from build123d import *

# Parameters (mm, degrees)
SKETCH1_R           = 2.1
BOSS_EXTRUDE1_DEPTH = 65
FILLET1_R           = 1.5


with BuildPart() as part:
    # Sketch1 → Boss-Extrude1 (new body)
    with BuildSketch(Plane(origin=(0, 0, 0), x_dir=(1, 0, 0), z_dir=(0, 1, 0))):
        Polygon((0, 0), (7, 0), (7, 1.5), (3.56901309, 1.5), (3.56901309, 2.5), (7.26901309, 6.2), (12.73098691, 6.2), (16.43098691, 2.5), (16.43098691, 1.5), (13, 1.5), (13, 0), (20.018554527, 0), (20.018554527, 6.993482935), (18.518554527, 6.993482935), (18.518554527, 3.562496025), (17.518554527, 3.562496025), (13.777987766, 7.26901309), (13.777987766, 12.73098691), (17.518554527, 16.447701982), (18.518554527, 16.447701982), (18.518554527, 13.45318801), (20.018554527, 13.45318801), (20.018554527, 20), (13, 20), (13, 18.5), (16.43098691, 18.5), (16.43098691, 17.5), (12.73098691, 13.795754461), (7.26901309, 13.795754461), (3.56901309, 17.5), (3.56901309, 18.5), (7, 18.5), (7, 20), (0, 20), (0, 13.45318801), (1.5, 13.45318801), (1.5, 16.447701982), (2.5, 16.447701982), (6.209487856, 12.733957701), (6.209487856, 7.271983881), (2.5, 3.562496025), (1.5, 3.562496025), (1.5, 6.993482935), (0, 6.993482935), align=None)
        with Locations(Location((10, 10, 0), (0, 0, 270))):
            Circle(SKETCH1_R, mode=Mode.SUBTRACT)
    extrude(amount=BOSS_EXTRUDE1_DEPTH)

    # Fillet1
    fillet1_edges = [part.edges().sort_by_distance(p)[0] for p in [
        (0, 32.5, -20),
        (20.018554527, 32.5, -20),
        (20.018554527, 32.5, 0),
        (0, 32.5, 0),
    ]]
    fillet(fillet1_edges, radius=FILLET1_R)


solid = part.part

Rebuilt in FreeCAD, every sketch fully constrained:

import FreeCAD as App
import Part
import Sketcher


def edges_at(feature, points):
    """Names of the edges that pass closest to the given points."""
    edges = feature.Shape.Edges
    near = lambda p: min(range(len(edges)), key=lambda i: edges[i].distToShape(Part.Vertex(*p))[0])
    return sorted({f"Edge{near(p) + 1}" for p in points})

doc = App.newDocument("Part")
body = doc.addObject("PartDesign::Body", "Body")

sketch1 = body.newObject("Sketcher::SketchObject", "Sketch")
sketch1.AttachmentSupport = (doc.getObject("XZ_Plane"), [""])
sketch1.MapMode = "FlatFace"
sketch1.addGeometry(Part.LineSegment(App.Vector(0, 0, 0), App.Vector(7, 0, 0)), False)
sketch1.addGeometry(Part.LineSegment(App.Vector(7, 0, 0), App.Vector(7, -1.5, 0)), False)
sketch1.addGeometry(Part.LineSegment(App.Vector(7, -1.5, 0), App.Vector(3.6, -1.5, 0)), False)
sketch1.addGeometry(Part.LineSegment(App.Vector(3.6, -1.5, 0), App.Vector(3.6, -2.5, 0)), False)
sketch1.addGeometry(Part.LineSegment(App.Vector(3.6, -2.5, 0), App.Vector(7.3, -6.2, 0)), False)
sketch1.addGeometry(Part.LineSegment(App.Vector(7.3, -6.2, 0), App.Vector(12.7, -6.2, 0)), False)
sketch1.addGeometry(Part.LineSegment(App.Vector(12.7, -6.2, 0), App.Vector(16.4, -2.5, 0)), False)
sketch1.addGeometry(Part.LineSegment(App.Vector(16.4, -2.5, 0), App.Vector(16.4, -1.5, 0)), False)
sketch1.addGeometry(Part.LineSegment(App.Vector(16.4, -1.5, 0), App.Vector(13, -1.5, 0)), False)
sketch1.addGeometry(Part.LineSegment(App.Vector(13, -1.5, 0), App.Vector(13, 0, 0)), False)
sketch1.addGeometry(Part.LineSegment(App.Vector(13, 0, 0), App.Vector(20, 0, 0)), False)
sketch1.addGeometry(Part.LineSegment(App.Vector(20, 0, 0), App.Vector(20, -7, 0)), False)
sketch1.addGeometry(Part.LineSegment(App.Vector(20, -7, 0), App.Vector(18.5, -7, 0)), False)
sketch1.addGeometry(Part.LineSegment(App.Vector(18.5, -7, 0), App.Vector(18.5, -3.6, 0)), False)
sketch1.addGeometry(Part.LineSegment(App.Vector(18.5, -3.6, 0), App.Vector(17.5, -3.6, 0)), False)
sketch1.addGeometry(Part.LineSegment(App.Vector(17.5, -3.6, 0), App.Vector(13.8, -7.3, 0)), False)
sketch1.addGeometry(Part.LineSegment(App.Vector(13.8, -7.3, 0), App.Vector(13.8, -12.7, 0)), False)
sketch1.addGeometry(Part.LineSegment(App.Vector(13.8, -12.7, 0), App.Vector(17.5, -16.4, 0)), False)
sketch1.addGeometry(Part.LineSegment(App.Vector(17.5, -16.4, 0), App.Vector(18.5, -16.4, 0)), False)
sketch1.addGeometry(Part.LineSegment(App.Vector(18.5, -16.4, 0), App.Vector(18.5, -13.5, 0)), False)
sketch1.addGeometry(Part.LineSegment(App.Vector(18.5, -13.5, 0), App.Vector(20, -13.5, 0)), False)
sketch1.addGeometry(Part.LineSegment(App.Vector(20, -13.5, 0), App.Vector(20, -20, 0)), False)
sketch1.addGeometry(Part.LineSegment(App.Vector(20, -20, 0), App.Vector(13, -20, 0)), False)
sketch1.addGeometry(Part.LineSegment(App.Vector(13, -20, 0), App.Vector(13, -18.5, 0)), False)
sketch1.addGeometry(Part.LineSegment(App.Vector(13, -18.5, 0), App.Vector(16.4, -18.5, 0)), False)
sketch1.addGeometry(Part.LineSegment(App.Vector(16.4, -18.5, 0), App.Vector(16.4, -17.5, 0)), False)
sketch1.addGeometry(Part.LineSegment(App.Vector(16.4, -17.5, 0), App.Vector(12.7, -13.8, 0)), False)
sketch1.addGeometry(Part.LineSegment(App.Vector(12.7, -13.8, 0), App.Vector(7.3, -13.8, 0)), False)
sketch1.addGeometry(Part.LineSegment(App.Vector(7.3, -13.8, 0), App.Vector(3.6, -17.5, 0)), False)
sketch1.addGeometry(Part.LineSegment(App.Vector(3.6, -17.5, 0), App.Vector(3.6, -18.5, 0)), False)
sketch1.addGeometry(Part.LineSegment(App.Vector(3.6, -18.5, 0), App.Vector(7, -18.5, 0)), False)
sketch1.addGeometry(Part.LineSegment(App.Vector(7, -18.5, 0), App.Vector(7, -20, 0)), False)
sketch1.addGeometry(Part.LineSegment(App.Vector(7, -20, 0), App.Vector(0, -20, 0)), False)
sketch1.addGeometry(Part.LineSegment(App.Vector(0, -20, 0), App.Vector(0, -13.5, 0)), False)
sketch1.addGeometry(Part.LineSegment(App.Vector(0, -13.5, 0), App.Vector(1.5, -13.5, 0)), False)
sketch1.addGeometry(Part.LineSegment(App.Vector(1.5, -13.5, 0), App.Vector(1.5, -16.4, 0)), False)
sketch1.addGeometry(Part.LineSegment(App.Vector(1.5, -16.4, 0), App.Vector(2.5, -16.4, 0)), False)
sketch1.addGeometry(Part.LineSegment(App.Vector(2.5, -16.4, 0), App.Vector(6.2, -12.7, 0)), False)
sketch1.addGeometry(Part.LineSegment(App.Vector(6.2, -12.7, 0), App.Vector(6.2, -7.3, 0)), False)
sketch1.addGeometry(Part.LineSegment(App.Vector(6.2, -7.3, 0), App.Vector(2.5, -3.6, 0)), False)
sketch1.addGeometry(Part.LineSegment(App.Vector(2.5, -3.6, 0), App.Vector(1.5, -3.6, 0)), False)
sketch1.addGeometry(Part.LineSegment(App.Vector(1.5, -3.6, 0), App.Vector(1.5, -7, 0)), False)
sketch1.addGeometry(Part.LineSegment(App.Vector(1.5, -7, 0), App.Vector(0, -7, 0)), False)
sketch1.addGeometry(Part.LineSegment(App.Vector(0, -7, 0), App.Vector(0, 0, 0)), False)
sketch1.addGeometry(Part.Circle(App.Vector(10, -10, 0), App.Vector(0, 0, 1), 2.1), False)
sketch1.addConstraint(Sketcher.Constraint("Coincident", 0, 2, 1, 1))
sketch1.addConstraint(Sketcher.Constraint("Coincident", 1, 2, 2, 1))
sketch1.addConstraint(Sketcher.Constraint("Coincident", 2, 2, 3, 1))
sketch1.addConstraint(Sketcher.Constraint("Coincident", 3, 2, 4, 1))
sketch1.addConstraint(Sketcher.Constraint("Coincident", 4, 2, 5, 1))
sketch1.addConstraint(Sketcher.Constraint("Coincident", 5, 2, 6, 1))
sketch1.addConstraint(Sketcher.Constraint("Coincident", 6, 2, 7, 1))
sketch1.addConstraint(Sketcher.Constraint("Coincident", 7, 2, 8, 1))
sketch1.addConstraint(Sketcher.Constraint("Coincident", 8, 2, 9, 1))
sketch1.addConstraint(Sketcher.Constraint("Coincident", 9, 2, 10, 1))
sketch1.addConstraint(Sketcher.Constraint("Coincident", 10, 2, 11, 1))
sketch1.addConstraint(Sketcher.Constraint("Coincident", 11, 2, 12, 1))
sketch1.addConstraint(Sketcher.Constraint("Coincident", 12, 2, 13, 1))
sketch1.addConstraint(Sketcher.Constraint("Coincident", 13, 2, 14, 1))
sketch1.addConstraint(Sketcher.Constraint("Coincident", 14, 2, 15, 1))
sketch1.addConstraint(Sketcher.Constraint("Coincident", 15, 2, 16, 1))
sketch1.addConstraint(Sketcher.Constraint("Coincident", 16, 2, 17, 1))
sketch1.addConstraint(Sketcher.Constraint("Coincident", 17, 2, 18, 1))
sketch1.addConstraint(Sketcher.Constraint("Coincident", 18, 2, 19, 1))
sketch1.addConstraint(Sketcher.Constraint("Coincident", 19, 2, 20, 1))
sketch1.addConstraint(Sketcher.Constraint("Coincident", 20, 2, 21, 1))
sketch1.addConstraint(Sketcher.Constraint("Coincident", 21, 2, 22, 1))
sketch1.addConstraint(Sketcher.Constraint("Coincident", 22, 2, 23, 1))
sketch1.addConstraint(Sketcher.Constraint("Coincident", 23, 2, 24, 1))
sketch1.addConstraint(Sketcher.Constraint("Coincident", 24, 2, 25, 1))
sketch1.addConstraint(Sketcher.Constraint("Coincident", 25, 2, 26, 1))
sketch1.addConstraint(Sketcher.Constraint("Coincident", 26, 2, 27, 1))
sketch1.addConstraint(Sketcher.Constraint("Coincident", 27, 2, 28, 1))
sketch1.addConstraint(Sketcher.Constraint("Coincident", 28, 2, 29, 1))
sketch1.addConstraint(Sketcher.Constraint("Coincident", 29, 2, 30, 1))
sketch1.addConstraint(Sketcher.Constraint("Coincident", 30, 2, 31, 1))
sketch1.addConstraint(Sketcher.Constraint("Coincident", 31, 2, 32, 1))
sketch1.addConstraint(Sketcher.Constraint("Coincident", 32, 2, 33, 1))
sketch1.addConstraint(Sketcher.Constraint("Coincident", 33, 2, 34, 1))
sketch1.addConstraint(Sketcher.Constraint("Coincident", 34, 2, 35, 1))
sketch1.addConstraint(Sketcher.Constraint("Coincident", 35, 2, 36, 1))
sketch1.addConstraint(Sketcher.Constraint("Coincident", 36, 2, 37, 1))
sketch1.addConstraint(Sketcher.Constraint("Coincident", 37, 2, 38, 1))
sketch1.addConstraint(Sketcher.Constraint("Coincident", 38, 2, 39, 1))
sketch1.addConstraint(Sketcher.Constraint("Coincident", 39, 2, 40, 1))
sketch1.addConstraint(Sketcher.Constraint("Coincident", 40, 2, 41, 1))
sketch1.addConstraint(Sketcher.Constraint("Coincident", 41, 2, 42, 1))
sketch1.addConstraint(Sketcher.Constraint("Coincident", 42, 2, 43, 1))
sketch1.addConstraint(Sketcher.Constraint("Coincident", 43, 2, 0, 1))
sketch1.addConstraint(Sketcher.Constraint("Horizontal", 0))
sketch1.addConstraint(Sketcher.Constraint("Vertical", 1))
sketch1.addConstraint(Sketcher.Constraint("Horizontal", 2))
sketch1.addConstraint(Sketcher.Constraint("Vertical", 3))
sketch1.addConstraint(Sketcher.Constraint("Horizontal", 5))
sketch1.addConstraint(Sketcher.Constraint("Vertical", 7))
sketch1.addConstraint(Sketcher.Constraint("Horizontal", 8))
sketch1.addConstraint(Sketcher.Constraint("Vertical", 9))
sketch1.addConstraint(Sketcher.Constraint("Horizontal", 10))
sketch1.addConstraint(Sketcher.Constraint("Vertical", 11))
sketch1.addConstraint(Sketcher.Constraint("Horizontal", 12))
sketch1.addConstraint(Sketcher.Constraint("Vertical", 13))
sketch1.addConstraint(Sketcher.Constraint("Horizontal", 14))
sketch1.addConstraint(Sketcher.Constraint("Vertical", 16))
sketch1.addConstraint(Sketcher.Constraint("Horizontal", 18))
sketch1.addConstraint(Sketcher.Constraint("Vertical", 19))
sketch1.addConstraint(Sketcher.Constraint("Horizontal", 20))
sketch1.addConstraint(Sketcher.Constraint("Vertical", 21))
sketch1.addConstraint(Sketcher.Constraint("Horizontal", 22))
sketch1.addConstraint(Sketcher.Constraint("Vertical", 23))
sketch1.addConstraint(Sketcher.Constraint("Horizontal", 24))
sketch1.addConstraint(Sketcher.Constraint("Vertical", 25))
sketch1.addConstraint(Sketcher.Constraint("Horizontal", 27))
sketch1.addConstraint(Sketcher.Constraint("Vertical", 29))
sketch1.addConstraint(Sketcher.Constraint("Horizontal", 30))
sketch1.addConstraint(Sketcher.Constraint("Vertical", 31))
sketch1.addConstraint(Sketcher.Constraint("Horizontal", 32))
sketch1.addConstraint(Sketcher.Constraint("Vertical", 33))
sketch1.addConstraint(Sketcher.Constraint("Horizontal", 34))
sketch1.addConstraint(Sketcher.Constraint("Vertical", 35))
sketch1.addConstraint(Sketcher.Constraint("Horizontal", 36))
sketch1.addConstraint(Sketcher.Constraint("Vertical", 38))
sketch1.addConstraint(Sketcher.Constraint("Horizontal", 40))
sketch1.addConstraint(Sketcher.Constraint("Vertical", 41))
sketch1.addConstraint(Sketcher.Constraint("Horizontal", 42))
sketch1.addConstraint(Sketcher.Constraint("Vertical", 43))
sketch1.addConstraint(Sketcher.Constraint("Coincident", 43, 2, -1, 1))
sketch1.addConstraint(Sketcher.Constraint("PointOnObject", 9, 2, -1))
sketch1.addConstraint(Sketcher.Constraint("PointOnObject", 32, 2, -2))
sketch1.addConstraint(Sketcher.Constraint("Perpendicular", 4, 6))
sketch1.addConstraint(Sketcher.Constraint("Parallel", 28, 37))
sketch1.addConstraint(Sketcher.Constraint("Perpendicular", 6, 39))
sketch1.addConstraint(Sketcher.Constraint("Horizontal", 3, 2, 6, 2))
sketch1.addConstraint(Sketcher.Constraint("Horizontal", 2, 2, 7, 2))
sketch1.addConstraint(Sketcher.Constraint("Horizontal", 25, 2, 28, 2))
sketch1.addConstraint(Sketcher.Constraint("Horizontal", 24, 2, 29, 2))
sketch1.addConstraint(Sketcher.Constraint("Horizontal", 22, 2, 31, 2))
sketch1.addConstraint(Sketcher.Constraint("Horizontal", 20, 2, 33, 2))
sketch1.addConstraint(Sketcher.Constraint("Horizontal", 18, 2, 35, 2))
sketch1.addConstraint(Sketcher.Constraint("Horizontal", 14, 2, 39, 2))
sketch1.addConstraint(Sketcher.Constraint("Horizontal", 12, 2, 41, 2))
sketch1.addConstraint(Sketcher.Constraint("Vertical", 14, 2, 17, 2))
sketch1.addConstraint(Sketcher.Constraint("Vertical", 13, 2, 18, 2))
sketch1.addConstraint(Sketcher.Constraint("Vertical", 11, 2, 20, 2))
sketch1.addConstraint(Sketcher.Constraint("Vertical", 9, 2, 22, 2))
sketch1.addConstraint(Sketcher.Constraint("Vertical", 7, 2, 24, 2))
sketch1.addConstraint(Sketcher.Constraint("Vertical", 5, 2, 26, 2))
sketch1.addConstraint(Sketcher.Constraint("Vertical", 4, 2, 27, 2))
sketch1.addConstraint(Sketcher.Constraint("Vertical", 3, 2, 28, 2))
sketch1.addConstraint(Sketcher.Constraint("Vertical", 1, 2, 30, 2))
sketch1.addConstraint(Sketcher.Constraint("Vertical", 36, 2, 39, 2))
sketch1.addConstraint(Sketcher.Constraint("Vertical", 35, 2, 40, 2))
sketch1.addConstraint(Sketcher.Constraint("Equal", 2, 8))
sketch1.addConstraint(Sketcher.Constraint("Equal", 20, 34))
sketch1.addConstraint(Sketcher.Constraint("Equal", 18, 36))
sketch1.addConstraint(Sketcher.Constraint("Equal", 42, 1))
sketch1.addConstraint(Sketcher.Constraint("Equal", 40, 3))
sketch1.addConstraint(Sketcher.Constraint("Equal", 30, 13))
sketch1.addConstraint(Sketcher.Constraint("Equal", 27, 16))
sketch1.addConstraint(Sketcher.Constraint("Equal", 9, 23))
sketch1.addConstraint(Sketcher.Constraint("Equal", 7, 25))
sketch1.addConstraint(Sketcher.Constraint("Equal", 16, 38))
sketch1.addConstraint(Sketcher.Constraint("Equal", 4, 6))
sketch1.addConstraint(Sketcher.Constraint("Diameter", 44, 4.2))
sketch1.addConstraint(Sketcher.Constraint("DistanceX", 0, 1, 0, 2, 7.0))
sketch1.addConstraint(Sketcher.Constraint("DistanceX", 14, 2, 14, 1, 1.0))
sketch1.addConstraint(Sketcher.Constraint("DistanceX", 12, 2, 12, 1, 1.5))
sketch1.addConstraint(Sketcher.Constraint("DistanceX", -1, 1, 44, 3, 10.0))
sketch1.addConstraint(Sketcher.Constraint("DistanceY", 44, 3, -1, 1, 10.0))
sketch1.addConstraint(Sketcher.Constraint("DistanceX", -1, 1, 8, 2, 13.0))
sketch1.addConstraint(Sketcher.Constraint("DistanceY", 21, 2, -1, 1, 20.0))
sketch1.addConstraint(Sketcher.Constraint("DistanceY", 4, 2, -1, 1, 6.2))
sketch1.addConstraint(Sketcher.Constraint("DistanceX", 5, 2, 15, 2, 1.047001))
sketch1.addConstraint(Sketcher.Constraint("DistanceY", 21, 2, 21, 1, 6.546812))
sketch1.addConstraint(Sketcher.Constraint("DistanceY", 17, 2, -1, 1, 16.447702))
sketch1.addConstraint(Sketcher.Constraint("DistanceY", 19, 2, 16, 2, 0.722201))
sketch1.addConstraint(Sketcher.Constraint("DistanceY", 38, 2, 41, 2, 0.278501))
sketch1.addConstraint(Sketcher.Constraint("Distance", 15, 5.265939))
sketch1.addConstraint(Sketcher.Constraint("Distance", 17, 5.273122))
sketch1.addConstraint(Sketcher.Constraint("Distance", 39, 5.246008))
pad1 = body.newObject("PartDesign::Pad", "Pad")
pad1.Profile = sketch1
pad1.Length = 65
pad1.Reversed = True
doc.recompute()

fillet = body.newObject("PartDesign::Fillet", "Fillet")
fillet.Base = (pad1, edges_at(pad1, [
    (0, 32.5, -20),
    (20.019, 32.5, -20),
    (20.019, 32.5, 0),
    (0, 32.5, 0),
]))
fillet.Radius = 1.5

doc.recompute()
